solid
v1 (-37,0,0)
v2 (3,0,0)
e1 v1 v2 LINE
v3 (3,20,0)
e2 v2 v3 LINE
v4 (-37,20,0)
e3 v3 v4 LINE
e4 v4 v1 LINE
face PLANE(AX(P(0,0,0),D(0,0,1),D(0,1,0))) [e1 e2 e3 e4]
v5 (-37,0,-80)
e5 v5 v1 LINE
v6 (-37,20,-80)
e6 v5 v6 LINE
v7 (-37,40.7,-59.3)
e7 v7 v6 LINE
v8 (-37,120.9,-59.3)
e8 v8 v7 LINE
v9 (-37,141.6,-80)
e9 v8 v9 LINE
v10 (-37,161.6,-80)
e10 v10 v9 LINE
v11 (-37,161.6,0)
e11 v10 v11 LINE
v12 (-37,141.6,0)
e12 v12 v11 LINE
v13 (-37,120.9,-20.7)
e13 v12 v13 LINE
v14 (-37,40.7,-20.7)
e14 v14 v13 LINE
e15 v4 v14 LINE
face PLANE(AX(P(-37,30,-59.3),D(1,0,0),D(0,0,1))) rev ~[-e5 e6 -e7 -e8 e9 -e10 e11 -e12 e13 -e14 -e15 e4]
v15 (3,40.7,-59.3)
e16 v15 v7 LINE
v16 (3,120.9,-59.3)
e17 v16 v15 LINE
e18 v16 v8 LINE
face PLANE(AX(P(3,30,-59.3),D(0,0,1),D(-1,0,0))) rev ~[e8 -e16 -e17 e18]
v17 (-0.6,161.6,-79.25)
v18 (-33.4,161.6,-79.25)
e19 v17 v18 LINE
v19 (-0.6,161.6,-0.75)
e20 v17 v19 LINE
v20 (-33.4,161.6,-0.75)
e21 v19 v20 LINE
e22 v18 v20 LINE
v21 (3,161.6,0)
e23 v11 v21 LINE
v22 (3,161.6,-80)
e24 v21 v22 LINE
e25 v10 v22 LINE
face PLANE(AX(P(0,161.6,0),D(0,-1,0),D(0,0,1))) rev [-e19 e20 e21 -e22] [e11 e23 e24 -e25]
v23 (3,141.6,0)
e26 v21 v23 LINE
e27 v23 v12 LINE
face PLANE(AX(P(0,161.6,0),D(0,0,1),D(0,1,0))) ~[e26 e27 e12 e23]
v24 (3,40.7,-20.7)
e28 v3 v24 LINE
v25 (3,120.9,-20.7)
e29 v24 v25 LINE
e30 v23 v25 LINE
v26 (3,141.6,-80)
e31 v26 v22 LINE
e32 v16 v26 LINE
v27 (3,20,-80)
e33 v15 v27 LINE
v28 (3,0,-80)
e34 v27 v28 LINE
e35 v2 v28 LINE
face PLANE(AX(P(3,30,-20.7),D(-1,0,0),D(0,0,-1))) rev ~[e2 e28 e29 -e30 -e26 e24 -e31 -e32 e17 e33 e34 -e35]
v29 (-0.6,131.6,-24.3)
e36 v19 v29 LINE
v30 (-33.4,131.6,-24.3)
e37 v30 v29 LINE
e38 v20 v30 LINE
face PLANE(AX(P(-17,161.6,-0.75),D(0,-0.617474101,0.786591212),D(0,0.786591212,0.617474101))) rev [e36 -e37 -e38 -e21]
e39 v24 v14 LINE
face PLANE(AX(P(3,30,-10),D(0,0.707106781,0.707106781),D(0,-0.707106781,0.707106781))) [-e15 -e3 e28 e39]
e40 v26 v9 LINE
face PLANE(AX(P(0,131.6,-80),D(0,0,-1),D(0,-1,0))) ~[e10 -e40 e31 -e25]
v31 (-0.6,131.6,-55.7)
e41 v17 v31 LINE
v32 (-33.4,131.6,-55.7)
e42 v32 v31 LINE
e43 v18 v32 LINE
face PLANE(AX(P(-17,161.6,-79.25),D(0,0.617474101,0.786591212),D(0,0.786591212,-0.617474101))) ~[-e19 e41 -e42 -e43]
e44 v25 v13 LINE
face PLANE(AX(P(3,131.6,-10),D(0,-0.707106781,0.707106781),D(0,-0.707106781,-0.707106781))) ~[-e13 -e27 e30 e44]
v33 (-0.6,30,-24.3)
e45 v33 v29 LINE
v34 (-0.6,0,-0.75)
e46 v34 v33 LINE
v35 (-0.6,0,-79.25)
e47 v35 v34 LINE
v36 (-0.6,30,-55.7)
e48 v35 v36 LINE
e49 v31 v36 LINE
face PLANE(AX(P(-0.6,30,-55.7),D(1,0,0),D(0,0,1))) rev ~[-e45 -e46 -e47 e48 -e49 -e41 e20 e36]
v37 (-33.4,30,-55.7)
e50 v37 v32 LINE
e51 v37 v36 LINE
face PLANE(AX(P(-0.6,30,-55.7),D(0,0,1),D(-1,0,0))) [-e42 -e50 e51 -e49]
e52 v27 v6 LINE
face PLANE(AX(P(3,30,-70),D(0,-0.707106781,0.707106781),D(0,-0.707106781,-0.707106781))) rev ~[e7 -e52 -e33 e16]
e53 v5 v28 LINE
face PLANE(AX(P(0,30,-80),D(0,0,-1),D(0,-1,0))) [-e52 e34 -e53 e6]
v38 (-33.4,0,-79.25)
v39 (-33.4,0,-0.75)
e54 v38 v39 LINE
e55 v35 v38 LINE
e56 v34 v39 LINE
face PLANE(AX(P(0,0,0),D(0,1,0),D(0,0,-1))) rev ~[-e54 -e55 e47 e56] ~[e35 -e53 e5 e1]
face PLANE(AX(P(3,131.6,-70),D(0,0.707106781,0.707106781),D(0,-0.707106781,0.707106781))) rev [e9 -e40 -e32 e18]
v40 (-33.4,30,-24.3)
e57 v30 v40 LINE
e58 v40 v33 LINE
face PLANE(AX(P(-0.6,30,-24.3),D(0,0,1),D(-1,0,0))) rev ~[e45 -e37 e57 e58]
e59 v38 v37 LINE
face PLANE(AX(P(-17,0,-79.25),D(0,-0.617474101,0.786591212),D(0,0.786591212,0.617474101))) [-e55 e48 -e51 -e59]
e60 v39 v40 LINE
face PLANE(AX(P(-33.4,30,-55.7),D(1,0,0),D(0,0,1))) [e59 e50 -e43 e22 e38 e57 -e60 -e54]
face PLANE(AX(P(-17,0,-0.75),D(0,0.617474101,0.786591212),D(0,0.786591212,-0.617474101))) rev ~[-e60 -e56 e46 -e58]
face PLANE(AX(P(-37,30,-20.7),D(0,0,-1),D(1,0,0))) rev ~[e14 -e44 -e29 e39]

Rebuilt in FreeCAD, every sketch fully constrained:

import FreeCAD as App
import Part
import Sketcher

V = App.Vector
Q = App.Units.Quantity

doc = App.newDocument("Part")
params = doc.addObject("Spreadsheet::Sheet", "Params")
for row, (alias, value) in enumerate([
    ("sketch1_width", "34 mm"),
    ("sketch1_height", "80 mm"),
    ("pad1_length", "30 mm"),
    ("sketch2_height", "31.4 mm"),
    ("sketch2_height2", "78.5 mm"),
    ("pocket1_length", "32.8 mm"),
    ("sketch3_width", "30 mm"),
    ("sketch3_height", "80 mm"),
    ("pad2_length", "3 mm"),
    ("sketch4_width", "30 mm"),
    ("sketch4_height", "80 mm"),
    ("pad3_length", "3 mm"),
    ("sketch5_width", "10 mm"),
    ("sketch6_width", "40 mm"),
    ("sketch6_height", "38.6 mm"),
    ("pad4_length", "76.2 mm"),
    ("sketch7_width", "10.7 mm"),
    ("pad5_length", "40 mm"),
], start=1):
    params.set(f"A{row}", alias)
    params.set(f"B{row}", "=" + value)
    params.setAlias(f"B{row}", alias)

body = doc.addObject("PartDesign::Body", "Body")

# Sketch on XZ plane
sketch1 = doc.addObject("Sketcher::SketchObject", "Sketch")
body.addObject(sketch1)
sketch1.AttachmentSupport = (doc.XZ_Plane, [""])
sketch1.MapMode = "FlatFace"
sketch1.addGeometry([
    Part.LineSegment(V(-34, 0, 0), V(0, 0, 0)),
    Part.LineSegment(V(0, 0, 0), V(0, -80, 0)),
    Part.LineSegment(V(0, -80, 0), V(-34, -80, 0)),
    Part.LineSegment(V(-34, -80, 0), V(-34, 0, 0)),
], False)
sketch1.addConstraint([
    Sketcher.Constraint("Coincident", 0, 2, 1, 1),
    Sketcher.Constraint("Coincident", 1, 2, 2, 1),
    Sketcher.Constraint("Coincident", 2, 2, 3, 1),
    Sketcher.Constraint("Coincident", 3, 2, 0, 1),
    Sketcher.Constraint("Horizontal", 0),
    Sketcher.Constraint("Vertical", 1),
    Sketcher.Constraint("Horizontal", 2),
    Sketcher.Constraint("Vertical", 3),
    Sketcher.Constraint("Coincident", 0, 2, -1, 1),
    Sketcher.Constraint("DistanceX", 0, 1, 0, 2, Q("34 mm")),
    Sketcher.Constraint("DistanceY", 1, 2, 1, 1, Q("80 mm")),
])
sketch1.setExpression("Constraints[9]", "Params.sketch1_width")
sketch1.setExpression("Constraints[10]", "Params.sketch1_height")
pad1 = doc.addObject("PartDesign::Pad", "Pad")
body.addObject(pad1)
pad1.Profile = sketch1
pad1.setExpression("Length", "Params.pad1_length")
pad1.Reversed = True

# Sketch on YZ plane
sketch2 = doc.addObject("Sketcher::SketchObject", "Sketch001")
body.addObject(sketch2)
sketch2.AttachmentSupport = (doc.YZ_Plane, [""])
sketch2.MapMode = "FlatFace"
sketch2.AttachmentOffset = App.Placement(V(0, 0, -17), App.Rotation())
sketch2.addGeometry([
    Part.LineSegment(V(0, -79, 0), V(30, -56, 0)),
    Part.LineSegment(V(30, -56, 0), V(30, -24, 0)),
    Part.LineSegment(V(30, -24, 0), V(0, -1, 0)),
    Part.LineSegment(V(0, -1, 0), V(0, -79, 0)),
], False)
sketch2.addConstraint([
    Sketcher.Constraint("Coincident", 0, 2, 1, 1),
    Sketcher.Constraint("Coincident", 1, 2, 2, 1),
    Sketcher.Constraint("Coincident", 2, 2, 3, 1),
    Sketcher.Constraint("Coincident", 3, 2, 0, 1),
    Sketcher.Constraint("Vertical", 1),
    Sketcher.Constraint("Vertical", 3),
    Sketcher.Constraint("PointOnObject", 2, 2, -2),
    Sketcher.Constraint("Equal", 0, 2),
    Sketcher.Constraint("DistanceY", 2, 2, -1, 1, Q("0.75 mm")),
    Sketcher.Constraint("DistanceY", 1, 1, 1, 2, Q("31.4 mm")),
    Sketcher.Constraint("DistanceY", 3, 2, 3, 1, Q("78.5 mm")),
    Sketcher.Constraint("DistanceX", -1, 1, 0, 2, Q("30 mm")),
])
sketch2.setExpression("Constraints[9]", "Params.sketch2_height")
sketch2.setExpression("Constraints[10]", "Params.sketch2_height2")
pocket1 = doc.addObject("PartDesign::Pocket", "Pocket")
body.addObject(pocket1)
pocket1.Profile = sketch2
pocket1.setExpression("Length", "Params.pocket1_length")
pocket1.Midplane = True

# Sketch on YZ plane
sketch3 = doc.addObject("Sketcher::SketchObject", "Sketch002")
body.addObject(sketch3)
sketch3.AttachmentSupport = (doc.YZ_Plane, [""])
sketch3.MapMode = "FlatFace"
sketch3.AttachmentOffset = App.Placement(V(0, 0, -34), App.Rotation())
sketch3.addGeometry([
    Part.LineSegment(V(0, 0, 0), V(30, 0, 0)),
    Part.LineSegment(V(30, 0, 0), V(30, -80, 0)),
    Part.LineSegment(V(30, -80, 0), V(0, -80, 0)),
    Part.LineSegment(V(0, -80, 0), V(0, 0, 0)),
], False)
sketch3.addConstraint([
    Sketcher.Constraint("Coincident", 0, 2, 1, 1),
    Sketcher.Constraint("Coincident", 1, 2, 2, 1),
    Sketcher.Constraint("Coincident", 2, 2, 3, 1),
    Sketcher.Constraint("Coincident", 3, 2, 0, 1),
    Sketcher.Constraint("Horizontal", 0),
    Sketcher.Constraint("Vertical", 1),
    Sketcher.Constraint("Horizontal", 2),
    Sketcher.Constraint("Vertical", 3),
    Sketcher.Constraint("Coincident", 3, 2, -1, 1),
    Sketcher.Constraint("DistanceX", 0, 1, 0, 2, Q("30 mm")),
    Sketcher.Constraint("DistanceY", 1, 2, 1, 1, Q("80 mm")),
])
sketch3.setExpression("Constraints[9]", "Params.sketch3_width")
sketch3.setExpression("Constraints[10]", "Params.sketch3_height")
pad2 = doc.addObject("PartDesign::Pad", "Pad001")
body.addObject(pad2)
pad2.Profile = sketch3
pad2.setExpression("Length", "Params.pad2_length")
pad2.Reversed = True

# Sketch on YZ plane
sketch4 = doc.addObject("Sketcher::SketchObject", "Sketch003")
body.addObject(sketch4)
sketch4.AttachmentSupport = (doc.YZ_Plane, [""])
sketch4.MapMode = "FlatFace"
sketch4.addGeometry([
    Part.LineSegment(V(30, 0, 0), V(0, 0, 0)),
    Part.LineSegment(V(0, 0, 0), V(0, -80, 0)),
    Part.LineSegment(V(0, -80, 0), V(30, -80, 0)),
    Part.LineSegment(V(30, -80, 0), V(30, 0, 0)),
], False)
sketch4.addConstraint([
    Sketcher.Constraint("Coincident", 0, 2, 1, 1),
    Sketcher.Constraint("Coincident", 1, 2, 2, 1),
    Sketcher.Constraint("Coincident", 2, 2, 3, 1),
    Sketcher.Constraint("Coincident", 3, 2, 0, 1),
    Sketcher.Constraint("Horizontal", 0),
    Sketcher.Constraint("Vertical", 1),
    Sketcher.Constraint("Horizontal", 2),
    Sketcher.Constraint("Vertical", 3),
    Sketcher.Constraint("Coincident", 0, 2, -1, 1),
    Sketcher.Constraint("DistanceX", 0, 2, 0, 1, Q("30 mm")),
    Sketcher.Constraint("DistanceY", 1, 2, 1, 1, Q("80 mm")),
])
sketch4.setExpression("Constraints[9]", "Params.sketch4_width")
sketch4.setExpression("Constraints[10]", "Params.sketch4_height")
pad3 = doc.addObject("PartDesign::Pad", "Pad002")
body.addObject(pad3)
pad3.Profile = sketch4
pad3.setExpression("Length", "Params.pad3_length")

# Sketch on YZ plane
sketch5 = doc.addObject("Sketcher::SketchObject", "Sketch004")
body.addObject(sketch5)
sketch5.AttachmentSupport = (doc.YZ_Plane, [""])
sketch5.MapMode = "FlatFace"
sketch5.AttachmentOffset = App.Placement(V(0, 0, 3), App.Rotation())
sketch5.addGeometry([
    Part.LineSegment(V(30, -80, 0), V(30, -70, 0)),  # 0
    Part.LineSegment(V(30, -70, 0), V(20, -80, 0)),  # 1
    Part.LineSegment(V(20, -80, 0), V(30, -80, 0)),  # 2
    Part.LineSegment(V(30, -10, 0), V(30, 0, 0)),  # 3
    Part.LineSegment(V(30, 0, 0), V(20, 0, 0)),  # 4
    Part.LineSegment(V(20, 0, 0), V(30, -10, 0)),  # 5
], False)
sketch5.addConstraint([
    Sketcher.Constraint("Coincident", 0, 2, 1, 1),
    Sketcher.Constraint("Coincident", 1, 2, 2, 1),
    Sketcher.Constraint("Coincident", 2, 2, 0, 1),
    Sketcher.Constraint("Coincident", 3, 2, 4, 1),
    Sketcher.Constraint("Coincident", 4, 2, 5, 1),
    Sketcher.Constraint("Coincident", 5, 2, 3, 1),
    Sketcher.Constraint("Vertical", 0),
    Sketcher.Constraint("Horizontal", 2),
    Sketcher.Constraint("Vertical", 3),
    Sketcher.Constraint("Horizontal", 4),
    Sketcher.Constraint("PointOnObject", 3, 2, -1),
    Sketcher.Constraint("Perpendicular", 1, 5),
    Sketcher.Constraint("Vertical", 2, 2, 3, 2),
    Sketcher.Constraint("Vertical", 1, 2, 4, 2),
    Sketcher.Constraint("Equal", 4, 0),
    Sketcher.Constraint("DistanceX", 2, 1, 2, 2, Q("10 mm")),
    Sketcher.Constraint("DistanceX", -1, 1, 0, 2, Q("30 mm")),
    Sketcher.Constraint("DistanceY", 0, 2, -1, 1, Q("70 mm")),
])
sketch5.setExpression("Constraints[15]", "Params.sketch5_width")
pocket2 = doc.addObject("PartDesign::Pocket", "Pocket001")
body.addObject(pocket2)
pocket2.Profile = sketch5
pocket2.Type = "ThroughAll"

# Sketch on XZ plane
sketch6 = doc.addObject("Sketcher::SketchObject", "Sketch005")
body.addObject(sketch6)
sketch6.AttachmentSupport = (doc.XZ_Plane, [""])
sketch6.MapMode = "FlatFace"
sketch6.AttachmentOffset = App.Placement(V(0, 0, -30), App.Rotation())
sketch6.addGeometry([
    Part.LineSegment(V(-37, -59, 0), V(-37, -21, 0)),  # 0
    Part.LineSegment(V(-37, -21, 0), V(3, -21, 0)),  # 1
    Part.LineSegment(V(3, -21, 0), V(3, -59, 0)),  # 2
    Part.LineSegment(V(3, -59, 0), V(-37, -59, 0)),  # 3
    Part.LineSegment(V(-1, -56, 0), V(-1, -24, 0)),  # 4
    Part.LineSegment(V(-1, -24, 0), V(-33, -24, 0)),  # 5
    Part.LineSegment(V(-33, -24, 0), V(-33, -56, 0)),  # 6
    Part.LineSegment(V(-33, -56, 0), V(-1, -56, 0)),  # 7
], False)
sketch6.addConstraint([
    Sketcher.Constraint("Coincident", 0, 2, 1, 1),
    Sketcher.Constraint("Coincident", 1, 2, 2, 1),
    Sketcher.Constraint("Coincident", 2, 2, 3, 1),
    Sketcher.Constraint("Coincident", 3, 2, 0, 1),
    Sketcher.Constraint("Coincident", 4, 2, 5, 1),
    Sketcher.Constraint("Coincident", 5, 2, 6, 1),
    Sketcher.Constraint("Coincident", 6, 2, 7, 1),
    Sketcher.Constraint("Coincident", 7, 2, 4, 1),
    Sketcher.Constraint("Vertical", 0),
    Sketcher.Constraint("Horizontal", 1),
    Sketcher.Constraint("Vertical", 2),
    Sketcher.Constraint("Horizontal", 3),
    Sketcher.Constraint("Vertical", 4),
    Sketcher.Constraint("Horizontal", 5),
    Sketcher.Constraint("Vertical", 6),
    Sketcher.Constraint("Horizontal", 7),
    Sketcher.Constraint("DistanceX", 4, 2, 1, 2, Q("3.6 mm")),
    Sketcher.Constraint("DistanceY", 4, 2, 1, 2, Q("3.6 mm")),
    Sketcher.Constraint("DistanceX", 0, 2, 5, 2, Q("3.6 mm")),
    Sketcher.Constraint("DistanceY", 3, 2, 6, 2, Q("3.6 mm")),
    Sketcher.Constraint("DistanceX", 1, 1, 1, 2, Q("40 mm")),
    Sketcher.Constraint("DistanceY", 0, 1, 0, 2, Q("38.6 mm")),
    Sketcher.Constraint("DistanceX", 0, 2, -1, 1, Q("37 mm")),
    Sketcher.Constraint("DistanceY", 0, 2, -1, 1, Q("20.7 mm")),
])
sketch6.setExpression("Constraints[20]", "Params.sketch6_width")
sketch6.setExpression("Constraints[21]", "Params.sketch6_height")
pad4 = doc.addObject("PartDesign::Pad", "Pad003")
body.addObject(pad4)
pad4.Profile = sketch6
pad4.setExpression("Length", "Params.pad4_length")
pad4.Reversed = True

# Sketch on YZ plane
sketch7 = doc.addObject("Sketcher::SketchObject", "Sketch006")
body.addObject(sketch7)
sketch7.AttachmentSupport = (doc.YZ_Plane, [""])
sketch7.MapMode = "FlatFace"
sketch7.AttachmentOffset = App.Placement(V(0, 0, 3), App.Rotation())
sketch7.addGeometry([
    Part.LineSegment(V(30, -10, 0), V(30, -21, 0)),  # 0
    Part.LineSegment(V(30, -21, 0), V(41, -21, 0)),  # 1
    Part.LineSegment(V(41, -21, 0), V(30, -10, 0)),  # 2
    Part.LineSegment(V(30, -59, 0), V(30, -70, 0)),  # 3
    Part.LineSegment(V(30, -70, 0), V(41, -59, 0)),  # 4
    Part.LineSegment(V(41, -59, 0), V(30, -59, 0)),  # 5
], False)
sketch7.addConstraint([
    Sketcher.Constraint("Coincident", 0, 2, 1, 1),
    Sketcher.Constraint("Coincident", 1, 2, 2, 1),
    Sketcher.Constraint("Coincident", 2, 2, 0, 1),
    Sketcher.Constraint("Coincident", 3, 2, 4, 1),
    Sketcher.Constraint("Coincident", 4, 2, 5, 1),
    Sketcher.Constraint("Coincident", 5, 2, 3, 1),
    Sketcher.Constraint("Vertical", 0),
    Sketcher.Constraint("Horizontal", 1),
    Sketcher.Constraint("Vertical", 3),
    Sketcher.Constraint("Horizontal", 5),
    Sketcher.Constraint("Perpendicular", 2, 4),
    Sketcher.Constraint("Vertical", 2, 2, 3, 2),
    Sketcher.Constraint("Vertical", 1, 2, 4, 2),
    Sketcher.Constraint("Equal", 5, 0),
    Sketcher.Constraint("DistanceX", 1, 1, 1, 2, Q("10.7 mm")),
    Sketcher.Constraint("DistanceX", -1, 1, 0, 2, Q("30 mm")),
    Sketcher.Constraint("DistanceY", 2, 2, -1, 1, Q("10 mm")),
    Sketcher.Constraint("DistanceY", 3, 2, -1, 1, Q("70 mm")),
])
sketch7.setExpression("Constraints[14]", "Params.sketch7_width")
pad5 = doc.addObject("PartDesign::Pad", "Pad004")
body.addObject(pad5)
pad5.Profile = sketch7
pad5.setExpression("Length", "Params.pad5_length")
pad5.Reversed = True
doc.recompute()

datumplane = doc.addObject("PartDesign::Plane", "DatumPlane")
body.addObject(datumplane)
datumplane.AttachmentSupport = (doc.XZ_Plane, [""])
datumplane.MapMode = "FlatFace"
datumplane.AttachmentOffset = App.Placement(V(0, 0, -80.8), App.Rotation())
mirrored = doc.addObject("PartDesign::Mirrored", "Mirrored")
body.addObject(mirrored)
mirrored.TransformMode = "Transform body"
mirrored.MirrorPlane = (datumplane, [""])
body.Tip = mirrored

doc.recompute()
